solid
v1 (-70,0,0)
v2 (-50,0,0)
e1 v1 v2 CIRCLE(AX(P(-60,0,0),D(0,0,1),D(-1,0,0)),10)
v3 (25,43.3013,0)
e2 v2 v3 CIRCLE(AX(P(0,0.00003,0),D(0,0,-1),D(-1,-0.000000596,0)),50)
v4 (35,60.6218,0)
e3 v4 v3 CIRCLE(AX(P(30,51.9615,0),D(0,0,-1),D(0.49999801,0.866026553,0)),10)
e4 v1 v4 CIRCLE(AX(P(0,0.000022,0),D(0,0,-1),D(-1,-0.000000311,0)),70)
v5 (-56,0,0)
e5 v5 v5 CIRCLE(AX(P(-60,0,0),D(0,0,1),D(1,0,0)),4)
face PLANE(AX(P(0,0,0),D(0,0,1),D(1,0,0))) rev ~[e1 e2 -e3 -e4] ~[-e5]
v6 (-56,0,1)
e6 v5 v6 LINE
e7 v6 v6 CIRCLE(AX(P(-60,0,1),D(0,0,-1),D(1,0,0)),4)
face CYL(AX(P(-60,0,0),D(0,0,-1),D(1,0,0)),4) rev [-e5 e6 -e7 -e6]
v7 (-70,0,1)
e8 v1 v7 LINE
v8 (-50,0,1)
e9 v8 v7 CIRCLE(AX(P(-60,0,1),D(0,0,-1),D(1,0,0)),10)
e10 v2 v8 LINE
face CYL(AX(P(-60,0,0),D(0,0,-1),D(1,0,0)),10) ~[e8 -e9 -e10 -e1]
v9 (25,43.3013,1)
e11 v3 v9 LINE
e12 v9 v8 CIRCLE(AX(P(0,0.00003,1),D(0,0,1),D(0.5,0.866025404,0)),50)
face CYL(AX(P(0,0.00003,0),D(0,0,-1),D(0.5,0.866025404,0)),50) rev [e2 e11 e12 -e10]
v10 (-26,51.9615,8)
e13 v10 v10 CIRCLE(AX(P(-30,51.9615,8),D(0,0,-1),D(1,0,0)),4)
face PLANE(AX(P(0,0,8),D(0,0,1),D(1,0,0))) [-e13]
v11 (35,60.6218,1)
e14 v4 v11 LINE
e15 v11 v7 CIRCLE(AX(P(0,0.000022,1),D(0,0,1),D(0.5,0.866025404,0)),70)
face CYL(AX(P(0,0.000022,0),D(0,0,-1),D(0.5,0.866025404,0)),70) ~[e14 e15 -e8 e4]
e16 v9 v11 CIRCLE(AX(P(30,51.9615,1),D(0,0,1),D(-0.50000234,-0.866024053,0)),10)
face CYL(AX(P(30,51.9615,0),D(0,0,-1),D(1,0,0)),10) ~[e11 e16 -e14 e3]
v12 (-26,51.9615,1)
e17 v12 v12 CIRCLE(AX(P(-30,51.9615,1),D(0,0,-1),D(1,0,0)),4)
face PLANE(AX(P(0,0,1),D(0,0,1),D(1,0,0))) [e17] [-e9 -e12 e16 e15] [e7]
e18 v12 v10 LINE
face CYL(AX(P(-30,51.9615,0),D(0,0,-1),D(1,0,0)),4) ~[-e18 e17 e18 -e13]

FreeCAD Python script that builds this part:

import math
import FreeCAD as App
import Part
import Sketcher

doc = App.newDocument("Part")
body = doc.addObject("PartDesign::Body", "Body")

# Sketch on XY plane
sketch1 = body.newObject("Sketcher::SketchObject", "Sketch")
sketch1.AttachmentSupport = (doc.getObject("XY_Plane"), [""])
sketch1.MapMode = "FlatFace"
sketch1.addGeometry([
    Part.ArcOfCircle(Part.Circle(App.Vector(0, 0, 0), App.Vector(0, 0, 1), 50), math.radians(60), math.radians(180)),  # 0
    Part.ArcOfCircle(Part.Circle(App.Vector(30, 52, 0), App.Vector(0, 0, 1), 10), math.radians(-120), math.radians(60)),  # 1
    Part.ArcOfCircle(Part.Circle(App.Vector(0, 0, 0), App.Vector(0, 0, 1), 70), math.radians(60), math.radians(180)),  # 2
    Part.ArcOfCircle(Part.Circle(App.Vector(-60, 0, 0), App.Vector(0, 0, 1), 10), math.radians(180), math.radians(360)),  # 3
    Part.Circle(App.Vector(-60, 0, 0), App.Vector(0, 0, 1), 4),  # 4
], False)
sketch1.addConstraint([
    Sketcher.Constraint("Tangent", 0, 1, 1, 1),
    Sketcher.Constraint("Tangent", 1, 2, 2, 1),
    Sketcher.Constraint("Tangent", 2, 2, 3, 1),
    Sketcher.Constraint("Tangent", 3, 2, 0, 2),
    Sketcher.Constraint("Coincident", 0, 3, -1, 1),
    Sketcher.Constraint("Coincident", 2, 3, -1, 1),
    Sketcher.Constraint("Coincident", 4, 3, 3, 3),
    Sketcher.Constraint("PointOnObject", 3, 3, -1),
    Sketcher.Constraint("Diameter", 4, 8.0),
    Sketcher.Constraint("Radius", 0, 50.0),
    Sketcher.Constraint("Radius", 1, 10.0),
    Sketcher.Constraint("DistanceX", 0, 1, 1, 3, 5.0),
])
pad1 = body.newObject("PartDesign::Pad", "Pad")
pad1.Profile = sketch1
pad1.Length = 1

# Sketch on XY plane
sketch2 = body.newObject("Sketcher::SketchObject", "Sketch001")
sketch2.AttachmentSupport = (doc.getObject("XY_Plane"), [""])
sketch2.MapMode = "FlatFace"
sketch2.addGeometry(Part.Circle(App.Vector(-30, 52, 0), App.Vector(0, 0, 1), 4), False)
sketch2.addConstraint([
    Sketcher.Constraint("Diameter", 0, 8.0),
    Sketcher.Constraint("DistanceX", 0, 3, -1, 1, 30.0),
    Sketcher.Constraint("DistanceY", -1, 1, 0, 3, 51.9615),
])
pad2 = body.newObject("PartDesign::Pad", "Pad001")
pad2.Profile = sketch2
pad2.Length = 8

doc.recompute()
